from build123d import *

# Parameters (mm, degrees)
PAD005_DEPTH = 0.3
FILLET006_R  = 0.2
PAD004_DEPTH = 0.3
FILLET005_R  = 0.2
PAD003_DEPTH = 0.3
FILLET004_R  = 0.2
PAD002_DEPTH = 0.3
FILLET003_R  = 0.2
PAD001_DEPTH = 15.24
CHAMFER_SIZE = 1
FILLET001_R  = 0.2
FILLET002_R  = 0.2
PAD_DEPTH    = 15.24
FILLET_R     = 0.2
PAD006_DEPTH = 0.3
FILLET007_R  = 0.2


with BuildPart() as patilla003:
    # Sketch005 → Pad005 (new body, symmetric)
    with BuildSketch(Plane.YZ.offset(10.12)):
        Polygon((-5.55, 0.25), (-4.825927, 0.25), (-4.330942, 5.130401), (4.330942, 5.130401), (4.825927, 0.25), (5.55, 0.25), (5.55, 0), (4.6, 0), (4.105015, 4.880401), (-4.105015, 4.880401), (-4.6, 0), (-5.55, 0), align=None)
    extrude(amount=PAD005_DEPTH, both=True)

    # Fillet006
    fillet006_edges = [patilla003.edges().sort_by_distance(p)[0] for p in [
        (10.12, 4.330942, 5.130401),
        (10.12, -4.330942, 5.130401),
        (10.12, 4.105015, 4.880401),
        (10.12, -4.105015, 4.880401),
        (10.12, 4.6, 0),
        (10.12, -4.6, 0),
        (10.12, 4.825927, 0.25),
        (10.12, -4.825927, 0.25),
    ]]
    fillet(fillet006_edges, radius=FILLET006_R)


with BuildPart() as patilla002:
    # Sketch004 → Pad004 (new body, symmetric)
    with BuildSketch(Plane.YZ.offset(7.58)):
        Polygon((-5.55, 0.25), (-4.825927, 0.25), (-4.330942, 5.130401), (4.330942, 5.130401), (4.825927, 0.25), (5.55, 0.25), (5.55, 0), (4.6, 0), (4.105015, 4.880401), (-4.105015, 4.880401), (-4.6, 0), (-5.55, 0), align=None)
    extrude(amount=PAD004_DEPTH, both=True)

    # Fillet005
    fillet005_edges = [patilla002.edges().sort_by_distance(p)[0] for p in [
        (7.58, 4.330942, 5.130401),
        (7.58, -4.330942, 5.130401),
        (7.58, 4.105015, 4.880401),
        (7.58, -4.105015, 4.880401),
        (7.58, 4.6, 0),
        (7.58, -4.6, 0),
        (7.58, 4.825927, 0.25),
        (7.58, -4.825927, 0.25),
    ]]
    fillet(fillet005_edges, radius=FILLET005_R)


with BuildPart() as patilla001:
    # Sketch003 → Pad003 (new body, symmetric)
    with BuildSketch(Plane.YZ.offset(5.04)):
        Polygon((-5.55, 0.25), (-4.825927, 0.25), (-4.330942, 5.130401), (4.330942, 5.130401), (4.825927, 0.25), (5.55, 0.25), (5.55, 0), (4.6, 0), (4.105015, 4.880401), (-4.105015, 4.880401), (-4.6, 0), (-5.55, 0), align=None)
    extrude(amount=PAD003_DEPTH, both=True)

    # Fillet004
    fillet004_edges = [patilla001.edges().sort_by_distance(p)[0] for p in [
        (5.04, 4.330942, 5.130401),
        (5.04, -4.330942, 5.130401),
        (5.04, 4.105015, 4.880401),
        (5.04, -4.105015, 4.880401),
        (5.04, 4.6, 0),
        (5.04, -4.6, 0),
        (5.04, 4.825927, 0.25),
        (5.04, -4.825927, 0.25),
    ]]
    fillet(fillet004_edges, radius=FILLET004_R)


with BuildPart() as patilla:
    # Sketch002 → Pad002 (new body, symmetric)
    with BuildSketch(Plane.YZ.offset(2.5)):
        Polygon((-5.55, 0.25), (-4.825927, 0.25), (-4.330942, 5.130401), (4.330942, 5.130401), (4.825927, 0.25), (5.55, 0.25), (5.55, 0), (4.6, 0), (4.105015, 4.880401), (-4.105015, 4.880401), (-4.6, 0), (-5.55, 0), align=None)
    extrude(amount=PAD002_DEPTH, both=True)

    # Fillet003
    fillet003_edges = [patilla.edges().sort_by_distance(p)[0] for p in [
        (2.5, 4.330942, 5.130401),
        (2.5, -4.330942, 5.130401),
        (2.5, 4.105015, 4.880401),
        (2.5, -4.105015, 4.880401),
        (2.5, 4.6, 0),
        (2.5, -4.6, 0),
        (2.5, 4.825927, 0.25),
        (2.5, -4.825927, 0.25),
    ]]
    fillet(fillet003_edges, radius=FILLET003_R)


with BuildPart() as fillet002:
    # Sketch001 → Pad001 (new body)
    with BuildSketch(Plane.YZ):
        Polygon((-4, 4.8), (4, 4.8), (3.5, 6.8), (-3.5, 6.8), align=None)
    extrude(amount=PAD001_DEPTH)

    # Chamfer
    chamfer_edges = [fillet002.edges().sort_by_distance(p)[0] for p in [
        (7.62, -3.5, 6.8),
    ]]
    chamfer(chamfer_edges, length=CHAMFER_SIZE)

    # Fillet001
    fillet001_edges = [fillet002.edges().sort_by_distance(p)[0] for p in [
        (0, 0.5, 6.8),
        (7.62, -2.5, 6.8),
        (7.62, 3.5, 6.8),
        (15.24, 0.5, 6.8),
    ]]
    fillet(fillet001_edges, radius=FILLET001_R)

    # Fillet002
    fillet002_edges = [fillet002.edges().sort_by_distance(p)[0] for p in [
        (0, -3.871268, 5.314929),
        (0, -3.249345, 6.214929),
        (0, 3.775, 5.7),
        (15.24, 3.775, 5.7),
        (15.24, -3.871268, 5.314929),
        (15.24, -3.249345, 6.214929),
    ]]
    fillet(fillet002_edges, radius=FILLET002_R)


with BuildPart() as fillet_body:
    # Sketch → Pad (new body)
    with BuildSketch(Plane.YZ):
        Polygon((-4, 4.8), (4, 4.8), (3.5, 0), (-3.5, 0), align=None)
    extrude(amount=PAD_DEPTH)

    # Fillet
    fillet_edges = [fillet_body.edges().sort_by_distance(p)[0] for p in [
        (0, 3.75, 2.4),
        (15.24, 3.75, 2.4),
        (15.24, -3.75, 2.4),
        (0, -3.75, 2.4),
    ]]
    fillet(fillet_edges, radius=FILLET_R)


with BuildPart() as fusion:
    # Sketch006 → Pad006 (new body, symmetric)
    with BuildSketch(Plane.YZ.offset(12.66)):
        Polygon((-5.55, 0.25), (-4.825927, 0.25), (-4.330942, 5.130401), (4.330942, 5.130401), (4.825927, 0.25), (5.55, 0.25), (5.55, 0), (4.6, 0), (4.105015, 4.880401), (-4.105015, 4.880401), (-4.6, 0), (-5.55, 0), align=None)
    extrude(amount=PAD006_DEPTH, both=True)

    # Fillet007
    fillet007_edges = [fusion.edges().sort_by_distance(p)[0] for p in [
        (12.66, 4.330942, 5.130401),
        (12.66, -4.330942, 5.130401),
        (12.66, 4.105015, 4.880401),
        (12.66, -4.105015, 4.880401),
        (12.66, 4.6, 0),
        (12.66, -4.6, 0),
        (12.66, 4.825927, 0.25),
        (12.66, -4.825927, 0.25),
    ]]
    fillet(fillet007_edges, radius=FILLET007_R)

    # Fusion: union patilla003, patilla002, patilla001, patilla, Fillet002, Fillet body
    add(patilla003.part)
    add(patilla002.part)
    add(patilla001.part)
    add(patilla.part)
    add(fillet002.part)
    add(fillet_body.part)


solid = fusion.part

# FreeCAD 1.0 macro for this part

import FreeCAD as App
import Part
import Sketcher

V = App.Vector
Q = App.Units.Quantity


def edges_at(feature, points):
    """Names of the edges that pass closest to the given points."""
    edges = feature.Shape.Edges
    near = lambda p: min(range(len(edges)), key=lambda i: edges[i].distToShape(Part.Vertex(*p))[0])
    return sorted({f"Edge{near(p) + 1}" for p in points})

doc = App.newDocument("Part")
body = doc.addObject("PartDesign::Body", "Body")

# Sketch on YZ plane
sketch1 = body.newObject("Sketcher::SketchObject", "Sketch")
sketch1.AttachmentSupport = (doc.getObject("YZ_Plane"), [""])
sketch1.MapMode = "FlatFace"
sketch1.AttachmentOffset = App.Placement(V(0, 0, 10.12), App.Rotation())
sketch1.addGeometry([
    Part.LineSegment(V(-4.83, 0.25, 0), V(-5.55, 0.25, 0)),  # 0
    Part.LineSegment(V(-5.55, 0.25, 0), V(-5.55, 0, 0)),  # 1
    Part.LineSegment(V(-5.55, 0, 0), V(-4.6, 0, 0)),  # 2
    Part.LineSegment(V(-4.6, 0, 0), V(-4.11, 4.88, 0)),  # 3
    Part.LineSegment(V(-4.11, 4.88, 0), V(4.11, 4.88, 0)),  # 4
    Part.LineSegment(V(4.11, 4.88, 0), V(4.6, 0, 0)),  # 5
    Part.LineSegment(V(4.6, 0, 0), V(5.55, 0, 0)),  # 6
    Part.LineSegment(V(5.55, 0, 0), V(5.55, 0.25, 0)),  # 7
    Part.LineSegment(V(5.55, 0.25, 0), V(4.83, 0.25, 0)),  # 8
    Part.LineSegment(V(4.83, 0.25, 0), V(4.33, 5.13, 0)),  # 9
    Part.LineSegment(V(4.33, 5.13, 0), V(-4.33, 5.13, 0)),  # 10
    Part.LineSegment(V(-4.33, 5.13, 0), V(-4.83, 0.25, 0)),  # 11
], False)
sketch1.addConstraint([
    Sketcher.Constraint("Coincident", 0, 2, 1, 1),
    Sketcher.Constraint("Coincident", 1, 2, 2, 1),
    Sketcher.Constraint("Coincident", 2, 2, 3, 1),
    Sketcher.Constraint("Coincident", 3, 2, 4, 1),
    Sketcher.Constraint("Coincident", 4, 2, 5, 1),
    Sketcher.Constraint("Coincident", 5, 2, 6, 1),
    Sketcher.Constraint("Coincident", 6, 2, 7, 1),
    Sketcher.Constraint("Coincident", 7, 2, 8, 1),
    Sketcher.Constraint("Coincident", 8, 2, 9, 1),
    Sketcher.Constraint("Coincident", 9, 2, 10, 1),
    Sketcher.Constraint("Coincident", 10, 2, 11, 1),
    Sketcher.Constraint("Coincident", 11, 2, 0, 1),
    Sketcher.Constraint("Horizontal", 0),
    Sketcher.Constraint("Vertical", 1),
    Sketcher.Constraint("Horizontal", 2),
    Sketcher.Constraint("Horizontal", 4),
    Sketcher.Constraint("Horizontal", 6),
    Sketcher.Constraint("Vertical", 7),
    Sketcher.Constraint("Horizontal", 8),
    Sketcher.Constraint("Horizontal", 10),
    Sketcher.Constraint("Symmetric", 2, 2, 5, 2, -1, 1),
    Sketcher.Constraint("Symmetric", 1, 2, 6, 2, -2),
    Sketcher.Constraint("Symmetric", 8, 2, 11, 2, -2),
    Sketcher.Constraint("Parallel", 5, 9),
    Sketcher.Constraint("Parallel", 3, 11),
    Sketcher.Constraint("Equal", 3, 5),
    Sketcher.Constraint("Equal", 5, 9),
    Sketcher.Constraint("DistanceX", 2, 1, 2, 2, Q("0.95 mm")),
    Sketcher.Constraint("DistanceY", 1, 2, 1, 1, Q("0.25 mm")),
    Sketcher.Constraint("DistanceX", 2, 2, -1, 1, Q("4.6 mm")),
    Sketcher.Constraint("DistanceX", 4, 1, 4, 2, Q("8.21003 mm")),
    Sketcher.Constraint("DistanceY", -1, 1, 3, 2, Q("4.880401 mm")),
    Sketcher.Constraint("DistanceX", 0, 2, 0, 1, Q("0.724073 mm")),
])
pad1 = body.newObject("PartDesign::Pad", "Pad")
pad1.Profile = sketch1
pad1.Length = 0.6
pad1.Midplane = True
doc.recompute()

fillet = body.newObject("PartDesign::Fillet", "Fillet")
fillet.Base = (pad1, edges_at(pad1, [
    (10.12, 4.331, 5.13),
    (10.12, -4.331, 5.13),
    (10.12, 4.105, 4.88),
    (10.12, -4.105, 4.88),
    (10.12, 4.6, 0),
    (10.12, -4.6, 0),
    (10.12, 4.826, 0.25),
    (10.12, -4.826, 0.25),
]))
fillet.Radius = 0.2
body2 = doc.addObject("PartDesign::Body", "Body001")

# Sketch on YZ plane
sketch2 = body2.newObject("Sketcher::SketchObject", "Sketch001")
sketch2.AttachmentSupport = (doc.getObject("YZ_Plane001"), [""])
sketch2.MapMode = "FlatFace"
sketch2.AttachmentOffset = App.Placement(V(0, 0, 7.58), App.Rotation())
sketch2.addGeometry([
    Part.LineSegment(V(-4.83, 0.25, 0), V(-5.55, 0.25, 0)),  # 0
    Part.LineSegment(V(-5.55, 0.25, 0), V(-5.55, 0, 0)),  # 1
    Part.LineSegment(V(-5.55, 0, 0), V(-4.6, 0, 0)),  # 2
    Part.LineSegment(V(-4.6, 0, 0), V(-4.11, 4.88, 0)),  # 3
    Part.LineSegment(V(-4.11, 4.88, 0), V(4.11, 4.88, 0)),  # 4
    Part.LineSegment(V(4.11, 4.88, 0), V(4.6, 0, 0)),  # 5
    Part.LineSegment(V(4.6, 0, 0), V(5.55, 0, 0)),  # 6
    Part.LineSegment(V(5.55, 0, 0), V(5.55, 0.25, 0)),  # 7
    Part.LineSegment(V(5.55, 0.25, 0), V(4.83, 0.25, 0)),  # 8
    Part.LineSegment(V(4.83, 0.25, 0), V(4.33, 5.13, 0)),  # 9
    Part.LineSegment(V(4.33, 5.13, 0), V(-4.33, 5.13, 0)),  # 10
    Part.LineSegment(V(-4.33, 5.13, 0), V(-4.83, 0.25, 0)),  # 11
], False)
sketch2.addConstraint([
    Sketcher.Constraint("Coincident", 0, 2, 1, 1),
    Sketcher.Constraint("Coincident", 1, 2, 2, 1),
    Sketcher.Constraint("Coincident", 2, 2, 3, 1),
    Sketcher.Constraint("Coincident", 3, 2, 4, 1),
    Sketcher.Constraint("Coincident", 4, 2, 5, 1),
    Sketcher.Constraint("Coincident", 5, 2, 6, 1),
    Sketcher.Constraint("Coincident", 6, 2, 7, 1),
    Sketcher.Constraint("Coincident", 7, 2, 8, 1),
    Sketcher.Constraint("Coincident", 8, 2, 9, 1),
    Sketcher.Constraint("Coincident", 9, 2, 10, 1),
    Sketcher.Constraint("Coincident", 10, 2, 11, 1),
    Sketcher.Constraint("Coincident", 11, 2, 0, 1),
    Sketcher.Constraint("Horizontal", 0),
    Sketcher.Constraint("Vertical", 1),
    Sketcher.Constraint("Horizontal", 2),
    Sketcher.Constraint("Horizontal", 4),
    Sketcher.Constraint("Horizontal", 6),
    Sketcher.Constraint("Vertical", 7),
    Sketcher.Constraint("Horizontal", 8),
    Sketcher.Constraint("Horizontal", 10),
    Sketcher.Constraint("Symmetric", 2, 2, 5, 2, -1, 1),
    Sketcher.Constraint("Symmetric", 1, 2, 6, 2, -2),
    Sketcher.Constraint("Symmetric", 8, 2, 11, 2, -2),
    Sketcher.Constraint("Parallel", 5, 9),
    Sketcher.Constraint("Parallel", 3, 11),
    Sketcher.Constraint("Equal", 3, 5),
    Sketcher.Constraint("Equal", 5, 9),
    Sketcher.Constraint("DistanceX", 2, 1, 2, 2, Q("0.95 mm")),
    Sketcher.Constraint("DistanceY", 1, 2, 1, 1, Q("0.25 mm")),
    Sketcher.Constraint("DistanceX", 2, 2, -1, 1, Q("4.6 mm")),
    Sketcher.Constraint("DistanceX", 4, 1, 4, 2, Q("8.21003 mm")),
    Sketcher.Constraint("DistanceY", -1, 1, 3, 2, Q("4.880401 mm")),
    Sketcher.Constraint("DistanceX", 0, 2, 0, 1, Q("0.724073 mm")),
])
pad2 = body2.newObject("PartDesign::Pad", "Pad001")
pad2.Profile = sketch2
pad2.Length = 0.6
pad2.Midplane = True
doc.recompute()

fillet2 = body2.newObject("PartDesign::Fillet", "Fillet001")
fillet2.Base = (pad2, edges_at(pad2, [
    (7.58, 4.331, 5.13),
    (7.58, -4.331, 5.13),
    (7.58, 4.105, 4.88),
    (7.58, -4.105, 4.88),
    (7.58, 4.6, 0),
    (7.58, -4.6, 0),
    (7.58, 4.826, 0.25),
    (7.58, -4.826, 0.25),
]))
fillet2.Radius = 0.2
body3 = doc.addObject("PartDesign::Body", "Body002")

# Sketch on YZ plane
sketch3 = body3.newObject("Sketcher::SketchObject", "Sketch002")
sketch3.AttachmentSupport = (doc.getObject("YZ_Plane002"), [""])
sketch3.MapMode = "FlatFace"
sketch3.AttachmentOffset = App.Placement(V(0, 0, 5.04), App.Rotation())
sketch3.addGeometry([
    Part.LineSegment(V(-4.83, 0.25, 0), V(-5.55, 0.25, 0)),  # 0
    Part.LineSegment(V(-5.55, 0.25, 0), V(-5.55, 0, 0)),  # 1
    Part.LineSegment(V(-5.55, 0, 0), V(-4.6, 0, 0)),  # 2
    Part.LineSegment(V(-4.6, 0, 0), V(-4.11, 4.88, 0)),  # 3
    Part.LineSegment(V(-4.11, 4.88, 0), V(4.11, 4.88, 0)),  # 4
    Part.LineSegment(V(4.11, 4.88, 0), V(4.6, 0, 0)),  # 5
    Part.LineSegment(V(4.6, 0, 0), V(5.55, 0, 0)),  # 6
    Part.LineSegment(V(5.55, 0, 0), V(5.55, 0.25, 0)),  # 7
    Part.LineSegment(V(5.55, 0.25, 0), V(4.83, 0.25, 0)),  # 8
    Part.LineSegment(V(4.83, 0.25, 0), V(4.33, 5.13, 0)),  # 9
    Part.LineSegment(V(4.33, 5.13, 0), V(-4.33, 5.13, 0)),  # 10
    Part.LineSegment(V(-4.33, 5.13, 0), V(-4.83, 0.25, 0)),  # 11
], False)
sketch3.addConstraint([
    Sketcher.Constraint("Coincident", 0, 2, 1, 1),
    Sketcher.Constraint("Coincident", 1, 2, 2, 1),
    Sketcher.Constraint("Coincident", 2, 2, 3, 1),
    Sketcher.Constraint("Coincident", 3, 2, 4, 1),
    Sketcher.Constraint("Coincident", 4, 2, 5, 1),
    Sketcher.Constraint("Coincident", 5, 2, 6, 1),
    Sketcher.Constraint("Coincident", 6, 2, 7, 1),
    Sketcher.Constraint("Coincident", 7, 2, 8, 1),
    Sketcher.Constraint("Coincident", 8, 2, 9, 1),
    Sketcher.Constraint("Coincident", 9, 2, 10, 1),
    Sketcher.Constraint("Coincident", 10, 2, 11, 1),
    Sketcher.Constraint("Coincident", 11, 2, 0, 1),
    Sketcher.Constraint("Horizontal", 0),
    Sketcher.Constraint("Vertical", 1),
    Sketcher.Constraint("Horizontal", 2),
    Sketcher.Constraint("Horizontal", 4),
    Sketcher.Constraint("Horizontal", 6),
    Sketcher.Constraint("Vertical", 7),
    Sketcher.Constraint("Horizontal", 8),
    Sketcher.Constraint("Horizontal", 10),
    Sketcher.Constraint("Symmetric", 2, 2, 5, 2, -1, 1),
    Sketcher.Constraint("Symmetric", 1, 2, 6, 2, -2),
    Sketcher.Constraint("Symmetric", 8, 2, 11, 2, -2),
    Sketcher.Constraint("Parallel", 5, 9),
    Sketcher.Constraint("Parallel", 3, 11),
    Sketcher.Constraint("Equal", 3, 5),
    Sketcher.Constraint("Equal", 5, 9),
    Sketcher.Constraint("DistanceX", 2, 1, 2, 2, Q("0.95 mm")),
    Sketcher.Constraint("DistanceY", 1, 2, 1, 1, Q("0.25 mm")),
    Sketcher.Constraint("DistanceX", 2, 2, -1, 1, Q("4.6 mm")),
    Sketcher.Constraint("DistanceX", 4, 1, 4, 2, Q("8.21003 mm")),
    Sketcher.Constraint("DistanceY", -1, 1, 3, 2, Q("4.880401 mm")),
    Sketcher.Constraint("DistanceX", 0, 2, 0, 1, Q("0.724073 mm")),
])
pad3 = body3.newObject("PartDesign::Pad", "Pad002")
pad3.Profile = sketch3
pad3.Length = 0.6
pad3.Midplane = True
doc.recompute()

fillet3 = body3.newObject("PartDesign::Fillet", "Fillet002")
fillet3.Base = (pad3, edges_at(pad3, [
    (5.04, 4.331, 5.13),
    (5.04, -4.331, 5.13),
    (5.04, 4.105, 4.88),
    (5.04, -4.105, 4.88),
    (5.04, 4.6, 0),
    (5.04, -4.6, 0),
    (5.04, 4.826, 0.25),
    (5.04, -4.826, 0.25),
]))
fillet3.Radius = 0.2
body4 = doc.addObject("PartDesign::Body", "Body003")

# Sketch on YZ plane
sketch4 = body4.newObject("Sketcher::SketchObject", "Sketch003")
sketch4.AttachmentSupport = (doc.getObject("YZ_Plane003"), [""])
sketch4.MapMode = "FlatFace"
sketch4.AttachmentOffset = App.Placement(V(0, 0, 2.5), App.Rotation())
sketch4.addGeometry([
    Part.LineSegment(V(-4.83, 0.25, 0), V(-5.55, 0.25, 0)),  # 0
    Part.LineSegment(V(-5.55, 0.25, 0), V(-5.55, 0, 0)),  # 1
    Part.LineSegment(V(-5.55, 0, 0), V(-4.6, 0, 0)),  # 2
    Part.LineSegment(V(-4.6, 0, 0), V(-4.11, 4.88, 0)),  # 3
    Part.LineSegment(V(-4.11, 4.88, 0), V(4.11, 4.88, 0)),  # 4
    Part.LineSegment(V(4.11, 4.88, 0), V(4.6, 0, 0)),  # 5
    Part.LineSegment(V(4.6, 0, 0), V(5.55, 0, 0)),  # 6
    Part.LineSegment(V(5.55, 0, 0), V(5.55, 0.25, 0)),  # 7
    Part.LineSegment(V(5.55, 0.25, 0), V(4.83, 0.25, 0)),  # 8
    Part.LineSegment(V(4.83, 0.25, 0), V(4.33, 5.13, 0)),  # 9
    Part.LineSegment(V(4.33, 5.13, 0), V(-4.33, 5.13, 0)),  # 10
    Part.LineSegment(V(-4.33, 5.13, 0), V(-4.83, 0.25, 0)),  # 11
], False)
sketch4.addConstraint([
    Sketcher.Constraint("Coincident", 0, 2, 1, 1),
    Sketcher.Constraint("Coincident", 1, 2, 2, 1),
    Sketcher.Constraint("Coincident", 2, 2, 3, 1),
    Sketcher.Constraint("Coincident", 3, 2, 4, 1),
    Sketcher.Constraint("Coincident", 4, 2, 5, 1),
    Sketcher.Constraint("Coincident", 5, 2, 6, 1),
    Sketcher.Constraint("Coincident", 6, 2, 7, 1),
    Sketcher.Constraint("Coincident", 7, 2, 8, 1),
    Sketcher.Constraint("Coincident", 8, 2, 9, 1),
    Sketcher.Constraint("Coincident", 9, 2, 10, 1),
    Sketcher.Constraint("Coincident", 10, 2, 11, 1),
    Sketcher.Constraint("Coincident", 11, 2, 0, 1),
    Sketcher.Constraint("Horizontal", 0),
    Sketcher.Constraint("Vertical", 1),
    Sketcher.Constraint("Horizontal", 2),
    Sketcher.Constraint("Horizontal", 4),
    Sketcher.Constraint("Horizontal", 6),
    Sketcher.Constraint("Vertical", 7),
    Sketcher.Constraint("Horizontal", 8),
    Sketcher.Constraint("Horizontal", 10),
    Sketcher.Constraint("Symmetric", 2, 2, 5, 2, -1, 1),
    Sketcher.Constraint("Symmetric", 1, 2, 6, 2, -2),
    Sketcher.Constraint("Symmetric", 8, 2, 11, 2, -2),
    Sketcher.Constraint("Parallel", 5, 9),
    Sketcher.Constraint("Parallel", 3, 11),
    Sketcher.Constraint("Equal", 3, 5),
    Sketcher.Constraint("Equal", 5, 9),
    Sketcher.Constraint("DistanceX", 2, 1, 2, 2, Q("0.95 mm")),
    Sketcher.Constraint("DistanceY", 1, 2, 1, 1, Q("0.25 mm")),
    Sketcher.Constraint("DistanceX", 2, 2, -1, 1, Q("4.6 mm")),
    Sketcher.Constraint("DistanceX", 4, 1, 4, 2, Q("8.21003 mm")),
    Sketcher.Constraint("DistanceY", -1, 1, 3, 2, Q("4.880401 mm")),
    Sketcher.Constraint("DistanceX", 0, 2, 0, 1, Q("0.724073 mm")),
])
pad4 = body4.newObject("PartDesign::Pad", "Pad003")
pad4.Profile = sketch4
pad4.Length = 0.6
pad4.Midplane = True
doc.recompute()

fillet4 = body4.newObject("PartDesign::Fillet", "Fillet003")
fillet4.Base = (pad4, edges_at(pad4, [
    (2.5, 4.331, 5.13),
    (2.5, -4.331, 5.13),
    (2.5, 4.105, 4.88),
    (2.5, -4.105, 4.88),
    (2.5, 4.6, 0),
    (2.5, -4.6, 0),
    (2.5, 4.826, 0.25),
    (2.5, -4.826, 0.25),
]))
fillet4.Radius = 0.2
body5 = doc.addObject("PartDesign::Body", "Body004")

# Sketch on YZ plane
sketch5 = body5.newObject("Sketcher::SketchObject", "Sketch004")
sketch5.AttachmentSupport = (doc.getObject("YZ_Plane004"), [""])
sketch5.MapMode = "FlatFace"
sketch5.addGeometry([
    Part.LineSegment(V(-4, 4.8, 0), V(4, 4.8, 0)),
    Part.LineSegment(V(4, 4.8, 0), V(3.5, 6.8, 0)),
    Part.LineSegment(V(3.5, 6.8, 0), V(-3.5, 6.8, 0)),
    Part.LineSegment(V(-3.5, 6.8, 0), V(-4, 4.8, 0)),
], False)
sketch5.addConstraint([
    Sketcher.Constraint("Coincident", 0, 2, 1, 1),
    Sketcher.Constraint("Coincident", 1, 2, 2, 1),
    Sketcher.Constraint("Coincident", 2, 2, 3, 1),
    Sketcher.Constraint("Coincident", 3, 2, 0, 1),
    Sketcher.Constraint("Horizontal", 0),
    Sketcher.Constraint("Horizontal", 2),
    Sketcher.Constraint("Equal", 1, 3),
    Sketcher.Constraint("DistanceX", 0, 1, 0, 2, Q("8 mm")),
    Sketcher.Constraint("DistanceX", 2, 2, 2, 1, Q("7 mm")),
    Sketcher.Constraint("DistanceX", -1, 1, 0, 2, Q("4 mm")),
    Sketcher.Constraint("DistanceY", 0, 2, 1, 2, Q("2 mm")),
    Sketcher.Constraint("DistanceY", -1, 1, 0, 2, Q("4.8 mm")),
])
pad5 = body5.newObject("PartDesign::Pad", "Pad004")
pad5.Profile = sketch5
pad5.Length = 15.24
doc.recompute()

chamfer = body5.newObject("PartDesign::Chamfer", "Chamfer")
chamfer.Base = (pad5, edges_at(pad5, [(7.62, -3.5, 6.8)]))
chamfer.Size = 1
doc.recompute()

fillet5 = body5.newObject("PartDesign::Fillet", "Fillet004")
fillet5.Base = (chamfer, edges_at(chamfer, [
    (0, 0.5, 6.8),
    (7.62, -2.5, 6.8),
    (7.62, 3.5, 6.8),
    (15.24, 0.5, 6.8),
]))
fillet5.Radius = 0.2
doc.recompute()

fillet6 = body5.newObject("PartDesign::Fillet", "Fillet005")
fillet6.Base = (fillet5, edges_at(fillet5, [
    (0, -3.871, 5.315),
    (0, -3.249, 6.215),
    (0, 3.775, 5.7),
    (15.24, 3.775, 5.7),
    (15.24, -3.871, 5.315),
    (15.24, -3.249, 6.215),
]))
fillet6.Radius = 0.2
body6 = doc.addObject("PartDesign::Body", "Body005")

# Sketch on YZ plane
sketch6 = body6.newObject("Sketcher::SketchObject", "Sketch005")
sketch6.AttachmentSupport = (doc.getObject("YZ_Plane005"), [""])
sketch6.MapMode = "FlatFace"
sketch6.addGeometry([
    Part.LineSegment(V(4, 4.8, 0), V(-4, 4.8, 0)),
    Part.LineSegment(V(-4, 4.8, 0), V(-3.5, 0, 0)),
    Part.LineSegment(V(-3.5, 0, 0), V(3.5, 0, 0)),
    Part.LineSegment(V(3.5, 0, 0), V(4, 4.8, 0)),
], False)
sketch6.addConstraint([
    Sketcher.Constraint("Coincident", 0, 2, 1, 1),
    Sketcher.Constraint("Coincident", 1, 2, 2, 1),
    Sketcher.Constraint("Coincident", 2, 2, 3, 1),
    Sketcher.Constraint("Coincident", 3, 2, 0, 1),
    Sketcher.Constraint("Horizontal", 0),
    Sketcher.Constraint("Horizontal", 2),
    Sketcher.Constraint("Symmetric", 1, 2, 2, 2, -1, 1),
    Sketcher.Constraint("Equal", 1, 3),
    Sketcher.Constraint("DistanceX", 0, 2, 0, 1, Q("8 mm")),
    Sketcher.Constraint("DistanceX", 2, 1, 2, 2, Q("7 mm")),
    Sketcher.Constraint("DistanceY", -1, 1, 0, 2, Q("4.8 mm")),
])
pad6 = body6.newObject("PartDesign::Pad", "Pad005")
pad6.Profile = sketch6
pad6.Length = 15.24
doc.recompute()

fillet7 = body6.newObject("PartDesign::Fillet", "Fillet006")
fillet7.Base = (pad6, edges_at(pad6, [
    (0, 3.75, 2.4),
    (15.24, 3.75, 2.4),
    (15.24, -3.75, 2.4),
    (0, -3.75, 2.4),
]))
fillet7.Radius = 0.2
body7 = doc.addObject("PartDesign::Body", "Body006")
body7.AllowCompound = True

# Sketch on YZ plane
sketch7 = body7.newObject("Sketcher::SketchObject", "Sketch006")
sketch7.AttachmentSupport = (doc.getObject("YZ_Plane006"), [""])
sketch7.MapMode = "FlatFace"
sketch7.AttachmentOffset = App.Placement(V(0, 0, 12.66), App.Rotation())
sketch7.addGeometry([
    Part.LineSegment(V(-4.83, 0.25, 0), V(-5.55, 0.25, 0)),  # 0
    Part.LineSegment(V(-5.55, 0.25, 0), V(-5.55, 0, 0)),  # 1
    Part.LineSegment(V(-5.55, 0, 0), V(-4.6, 0, 0)),  # 2
    Part.LineSegment(V(-4.6, 0, 0), V(-4.11, 4.88, 0)),  # 3
    Part.LineSegment(V(-4.11, 4.88, 0), V(4.11, 4.88, 0)),  # 4
    Part.LineSegment(V(4.11, 4.88, 0), V(4.6, 0, 0)),  # 5
    Part.LineSegment(V(4.6, 0, 0), V(5.55, 0, 0)),  # 6
    Part.LineSegment(V(5.55, 0, 0), V(5.55, 0.25, 0)),  # 7
    Part.LineSegment(V(5.55, 0.25, 0), V(4.83, 0.25, 0)),  # 8
    Part.LineSegment(V(4.83, 0.25, 0), V(4.33, 5.13, 0)),  # 9
    Part.LineSegment(V(4.33, 5.13, 0), V(-4.33, 5.13, 0)),  # 10
    Part.LineSegment(V(-4.33, 5.13, 0), V(-4.83, 0.25, 0)),  # 11
], False)
sketch7.addConstraint([
    Sketcher.Constraint("Coincident", 0, 2, 1, 1),
    Sketcher.Constraint("Coincident", 1, 2, 2, 1),
    Sketcher.Constraint("Coincident", 2, 2, 3, 1),
    Sketcher.Constraint("Coincident", 3, 2, 4, 1),
    Sketcher.Constraint("Coincident", 4, 2, 5, 1),
    Sketcher.Constraint("Coincident", 5, 2, 6, 1),
    Sketcher.Constraint("Coincident", 6, 2, 7, 1),
    Sketcher.Constraint("Coincident", 7, 2, 8, 1),
    Sketcher.Constraint("Coincident", 8, 2, 9, 1),
    Sketcher.Constraint("Coincident", 9, 2, 10, 1),
    Sketcher.Constraint("Coincident", 10, 2, 11, 1),
    Sketcher.Constraint("Coincident", 11, 2, 0, 1),
    Sketcher.Constraint("Horizontal", 0),
    Sketcher.Constraint("Vertical", 1),
    Sketcher.Constraint("Horizontal", 2),
    Sketcher.Constraint("Horizontal", 4),
    Sketcher.Constraint("Horizontal", 6),
    Sketcher.Constraint("Vertical", 7),
    Sketcher.Constraint("Horizontal", 8),
    Sketcher.Constraint("Horizontal", 10),
    Sketcher.Constraint("Symmetric", 2, 2, 5, 2, -1, 1),
    Sketcher.Constraint("Symmetric", 1, 2, 6, 2, -2),
    Sketcher.Constraint("Symmetric", 8, 2, 11, 2, -2),
    Sketcher.Constraint("Parallel", 5, 9),
    Sketcher.Constraint("Parallel", 3, 11),
    Sketcher.Constraint("Equal", 3, 5),
    Sketcher.Constraint("Equal", 5, 9),
    Sketcher.Constraint("DistanceX", 2, 1, 2, 2, Q("0.95 mm")),
    Sketcher.Constraint("DistanceY", 1, 2, 1, 1, Q("0.25 mm")),
    Sketcher.Constraint("DistanceX", 2, 2, -1, 1, Q("4.6 mm")),
    Sketcher.Constraint("DistanceX", 4, 1, 4, 2, Q("8.21003 mm")),
    Sketcher.Constraint("DistanceY", -1, 1, 3, 2, Q("4.880401 mm")),
    Sketcher.Constraint("DistanceX", 0, 2, 0, 1, Q("0.724073 mm")),
])
pad7 = body7.newObject("PartDesign::Pad", "Pad006")
pad7.Profile = sketch7
pad7.Length = 0.6
pad7.Midplane = True
doc.recompute()

fillet8 = body7.newObject("PartDesign::Fillet", "Fillet007")
fillet8.Base = (pad7, edges_at(pad7, [
    (12.66, 4.331, 5.13),
    (12.66, -4.331, 5.13),
    (12.66, 4.105, 4.88),
    (12.66, -4.105, 4.88),
    (12.66, 4.6, 0),
    (12.66, -4.6, 0),
    (12.66, 4.826, 0.25),
    (12.66, -4.826, 0.25),
]))
fillet8.Radius = 0.2
doc.recompute()

boolean = body7.newObject("PartDesign::Boolean", "Boolean")
boolean.Type = "Fuse"
boolean.addObjects([body])
doc.recompute()

boolean2 = body7.newObject("PartDesign::Boolean", "Boolean001")
boolean2.Type = "Fuse"
boolean2.addObjects([body2])
doc.recompute()

boolean3 = body7.newObject("PartDesign::Boolean", "Boolean002")
boolean3.Type = "Fuse"
boolean3.addObjects([body3])
doc.recompute()

boolean4 = body7.newObject("PartDesign::Boolean", "Boolean003")
boolean4.Type = "Fuse"
boolean4.addObjects([body4])
doc.recompute()

boolean5 = body7.newObject("PartDesign::Boolean", "Boolean004")
boolean5.Type = "Fuse"
boolean5.addObjects([body5])
doc.recompute()

boolean6 = body7.newObject("PartDesign::Boolean", "Boolean005")
boolean6.Type = "Fuse"
boolean6.addObjects([body6])

doc.recompute()
